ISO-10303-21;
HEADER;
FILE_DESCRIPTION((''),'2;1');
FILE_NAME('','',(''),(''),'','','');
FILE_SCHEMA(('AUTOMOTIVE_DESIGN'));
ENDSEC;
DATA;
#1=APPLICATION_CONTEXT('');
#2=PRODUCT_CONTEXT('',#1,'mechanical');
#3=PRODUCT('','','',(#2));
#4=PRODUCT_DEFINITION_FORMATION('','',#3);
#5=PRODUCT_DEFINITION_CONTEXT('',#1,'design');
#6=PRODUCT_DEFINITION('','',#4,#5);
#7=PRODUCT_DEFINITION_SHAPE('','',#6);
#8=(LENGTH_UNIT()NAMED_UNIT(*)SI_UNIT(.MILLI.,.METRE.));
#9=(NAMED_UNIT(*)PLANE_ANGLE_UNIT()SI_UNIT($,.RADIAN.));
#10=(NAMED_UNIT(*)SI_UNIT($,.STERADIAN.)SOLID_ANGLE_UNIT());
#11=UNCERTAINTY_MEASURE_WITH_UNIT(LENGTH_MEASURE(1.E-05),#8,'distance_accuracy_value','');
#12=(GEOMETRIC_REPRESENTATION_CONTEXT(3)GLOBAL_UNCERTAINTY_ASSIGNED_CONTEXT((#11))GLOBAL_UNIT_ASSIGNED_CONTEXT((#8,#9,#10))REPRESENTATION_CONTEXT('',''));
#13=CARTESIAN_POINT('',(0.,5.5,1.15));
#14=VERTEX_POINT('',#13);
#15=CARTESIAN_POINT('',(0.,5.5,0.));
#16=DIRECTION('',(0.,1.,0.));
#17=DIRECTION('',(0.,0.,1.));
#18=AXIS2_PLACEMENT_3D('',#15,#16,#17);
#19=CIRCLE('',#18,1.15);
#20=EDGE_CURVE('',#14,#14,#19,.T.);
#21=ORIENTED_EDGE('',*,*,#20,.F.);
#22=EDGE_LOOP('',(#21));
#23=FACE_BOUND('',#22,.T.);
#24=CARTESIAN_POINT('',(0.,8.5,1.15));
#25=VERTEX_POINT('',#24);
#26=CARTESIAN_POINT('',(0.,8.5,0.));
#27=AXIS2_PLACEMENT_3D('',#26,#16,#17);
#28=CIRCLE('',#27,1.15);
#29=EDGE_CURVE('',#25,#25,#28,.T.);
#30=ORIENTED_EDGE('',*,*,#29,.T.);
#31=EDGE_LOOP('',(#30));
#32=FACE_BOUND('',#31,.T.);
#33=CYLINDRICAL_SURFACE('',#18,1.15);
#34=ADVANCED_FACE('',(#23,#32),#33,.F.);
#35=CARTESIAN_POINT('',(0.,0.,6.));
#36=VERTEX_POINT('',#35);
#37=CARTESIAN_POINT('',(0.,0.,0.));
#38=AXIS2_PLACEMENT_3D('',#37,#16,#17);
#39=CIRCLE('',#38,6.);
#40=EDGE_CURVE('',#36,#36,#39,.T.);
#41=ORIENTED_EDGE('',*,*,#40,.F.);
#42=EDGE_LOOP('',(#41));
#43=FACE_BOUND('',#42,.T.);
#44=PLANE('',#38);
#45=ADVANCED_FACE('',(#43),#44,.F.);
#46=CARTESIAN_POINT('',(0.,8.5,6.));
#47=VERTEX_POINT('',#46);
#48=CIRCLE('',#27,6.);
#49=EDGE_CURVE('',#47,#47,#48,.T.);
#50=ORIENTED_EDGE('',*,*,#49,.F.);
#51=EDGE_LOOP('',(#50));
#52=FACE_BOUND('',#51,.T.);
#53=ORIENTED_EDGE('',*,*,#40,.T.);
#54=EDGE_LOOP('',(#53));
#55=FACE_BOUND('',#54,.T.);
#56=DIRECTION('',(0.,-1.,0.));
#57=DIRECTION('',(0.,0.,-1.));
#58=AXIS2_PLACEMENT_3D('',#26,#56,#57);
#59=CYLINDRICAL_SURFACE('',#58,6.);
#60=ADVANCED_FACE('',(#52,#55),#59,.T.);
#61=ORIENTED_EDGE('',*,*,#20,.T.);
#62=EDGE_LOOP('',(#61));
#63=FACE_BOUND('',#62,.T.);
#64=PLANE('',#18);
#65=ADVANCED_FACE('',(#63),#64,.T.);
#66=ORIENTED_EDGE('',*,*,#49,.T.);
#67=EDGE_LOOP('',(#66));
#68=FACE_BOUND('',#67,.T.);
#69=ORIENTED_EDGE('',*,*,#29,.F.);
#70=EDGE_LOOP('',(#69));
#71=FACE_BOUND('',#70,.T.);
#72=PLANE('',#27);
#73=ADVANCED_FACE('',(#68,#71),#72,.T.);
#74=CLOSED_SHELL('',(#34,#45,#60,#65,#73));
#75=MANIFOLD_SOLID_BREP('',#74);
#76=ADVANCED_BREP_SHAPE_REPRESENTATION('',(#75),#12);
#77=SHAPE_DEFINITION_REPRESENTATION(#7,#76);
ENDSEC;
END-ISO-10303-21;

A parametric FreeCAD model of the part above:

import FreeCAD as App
import Part
import Sketcher
from FreeCAD import Vector
Q = App.Units.Quantity

doc = App.newDocument("Part")
body = doc.addObject("PartDesign::Body", "Body")

# Sketch on XZ plane
sketch1 = body.newObject("Sketcher::SketchObject", "Sketch")
sketch1.AttachmentSupport = (doc.getObject("XZ_Plane"), [""])
sketch1.MapMode = "FlatFace"
sketch1.addGeometry(Part.Circle(Vector(0, 0, 0), Vector(0, 0, 1), 6), False)
sketch1.addConstraint([
    Sketcher.Constraint("Coincident", 0, 3, -1, 1),
    Sketcher.Constraint("Diameter", 0, Q("12 mm")),
])
pad1 = body.newObject("PartDesign::Pad", "Pad")
pad1.Profile = sketch1
pad1.Length = 8.5
pad1.Reversed = True

# Sketch on XZ plane
sketch2 = body.newObject("Sketcher::SketchObject", "Sketch001")
sketch2.AttachmentSupport = (doc.getObject("XZ_Plane"), [""])
sketch2.MapMode = "FlatFace"
sketch2.AttachmentOffset = App.Placement(Vector(0, 0, -8.5), App.Rotation())
sketch2.addGeometry(Part.Circle(Vector(0, 0, 0), Vector(0, 0, 1), 1.1), False)
sketch2.addConstraint([
    Sketcher.Constraint("Coincident", 0, 3, -1, 1),
    Sketcher.Constraint("Diameter", 0, Q("2.3 mm")),
])
pocket1 = body.newObject("PartDesign::Pocket", "Pocket")
pocket1.Profile = sketch2
pocket1.Length = 3
pocket1.Reversed = True

doc.recompute()
